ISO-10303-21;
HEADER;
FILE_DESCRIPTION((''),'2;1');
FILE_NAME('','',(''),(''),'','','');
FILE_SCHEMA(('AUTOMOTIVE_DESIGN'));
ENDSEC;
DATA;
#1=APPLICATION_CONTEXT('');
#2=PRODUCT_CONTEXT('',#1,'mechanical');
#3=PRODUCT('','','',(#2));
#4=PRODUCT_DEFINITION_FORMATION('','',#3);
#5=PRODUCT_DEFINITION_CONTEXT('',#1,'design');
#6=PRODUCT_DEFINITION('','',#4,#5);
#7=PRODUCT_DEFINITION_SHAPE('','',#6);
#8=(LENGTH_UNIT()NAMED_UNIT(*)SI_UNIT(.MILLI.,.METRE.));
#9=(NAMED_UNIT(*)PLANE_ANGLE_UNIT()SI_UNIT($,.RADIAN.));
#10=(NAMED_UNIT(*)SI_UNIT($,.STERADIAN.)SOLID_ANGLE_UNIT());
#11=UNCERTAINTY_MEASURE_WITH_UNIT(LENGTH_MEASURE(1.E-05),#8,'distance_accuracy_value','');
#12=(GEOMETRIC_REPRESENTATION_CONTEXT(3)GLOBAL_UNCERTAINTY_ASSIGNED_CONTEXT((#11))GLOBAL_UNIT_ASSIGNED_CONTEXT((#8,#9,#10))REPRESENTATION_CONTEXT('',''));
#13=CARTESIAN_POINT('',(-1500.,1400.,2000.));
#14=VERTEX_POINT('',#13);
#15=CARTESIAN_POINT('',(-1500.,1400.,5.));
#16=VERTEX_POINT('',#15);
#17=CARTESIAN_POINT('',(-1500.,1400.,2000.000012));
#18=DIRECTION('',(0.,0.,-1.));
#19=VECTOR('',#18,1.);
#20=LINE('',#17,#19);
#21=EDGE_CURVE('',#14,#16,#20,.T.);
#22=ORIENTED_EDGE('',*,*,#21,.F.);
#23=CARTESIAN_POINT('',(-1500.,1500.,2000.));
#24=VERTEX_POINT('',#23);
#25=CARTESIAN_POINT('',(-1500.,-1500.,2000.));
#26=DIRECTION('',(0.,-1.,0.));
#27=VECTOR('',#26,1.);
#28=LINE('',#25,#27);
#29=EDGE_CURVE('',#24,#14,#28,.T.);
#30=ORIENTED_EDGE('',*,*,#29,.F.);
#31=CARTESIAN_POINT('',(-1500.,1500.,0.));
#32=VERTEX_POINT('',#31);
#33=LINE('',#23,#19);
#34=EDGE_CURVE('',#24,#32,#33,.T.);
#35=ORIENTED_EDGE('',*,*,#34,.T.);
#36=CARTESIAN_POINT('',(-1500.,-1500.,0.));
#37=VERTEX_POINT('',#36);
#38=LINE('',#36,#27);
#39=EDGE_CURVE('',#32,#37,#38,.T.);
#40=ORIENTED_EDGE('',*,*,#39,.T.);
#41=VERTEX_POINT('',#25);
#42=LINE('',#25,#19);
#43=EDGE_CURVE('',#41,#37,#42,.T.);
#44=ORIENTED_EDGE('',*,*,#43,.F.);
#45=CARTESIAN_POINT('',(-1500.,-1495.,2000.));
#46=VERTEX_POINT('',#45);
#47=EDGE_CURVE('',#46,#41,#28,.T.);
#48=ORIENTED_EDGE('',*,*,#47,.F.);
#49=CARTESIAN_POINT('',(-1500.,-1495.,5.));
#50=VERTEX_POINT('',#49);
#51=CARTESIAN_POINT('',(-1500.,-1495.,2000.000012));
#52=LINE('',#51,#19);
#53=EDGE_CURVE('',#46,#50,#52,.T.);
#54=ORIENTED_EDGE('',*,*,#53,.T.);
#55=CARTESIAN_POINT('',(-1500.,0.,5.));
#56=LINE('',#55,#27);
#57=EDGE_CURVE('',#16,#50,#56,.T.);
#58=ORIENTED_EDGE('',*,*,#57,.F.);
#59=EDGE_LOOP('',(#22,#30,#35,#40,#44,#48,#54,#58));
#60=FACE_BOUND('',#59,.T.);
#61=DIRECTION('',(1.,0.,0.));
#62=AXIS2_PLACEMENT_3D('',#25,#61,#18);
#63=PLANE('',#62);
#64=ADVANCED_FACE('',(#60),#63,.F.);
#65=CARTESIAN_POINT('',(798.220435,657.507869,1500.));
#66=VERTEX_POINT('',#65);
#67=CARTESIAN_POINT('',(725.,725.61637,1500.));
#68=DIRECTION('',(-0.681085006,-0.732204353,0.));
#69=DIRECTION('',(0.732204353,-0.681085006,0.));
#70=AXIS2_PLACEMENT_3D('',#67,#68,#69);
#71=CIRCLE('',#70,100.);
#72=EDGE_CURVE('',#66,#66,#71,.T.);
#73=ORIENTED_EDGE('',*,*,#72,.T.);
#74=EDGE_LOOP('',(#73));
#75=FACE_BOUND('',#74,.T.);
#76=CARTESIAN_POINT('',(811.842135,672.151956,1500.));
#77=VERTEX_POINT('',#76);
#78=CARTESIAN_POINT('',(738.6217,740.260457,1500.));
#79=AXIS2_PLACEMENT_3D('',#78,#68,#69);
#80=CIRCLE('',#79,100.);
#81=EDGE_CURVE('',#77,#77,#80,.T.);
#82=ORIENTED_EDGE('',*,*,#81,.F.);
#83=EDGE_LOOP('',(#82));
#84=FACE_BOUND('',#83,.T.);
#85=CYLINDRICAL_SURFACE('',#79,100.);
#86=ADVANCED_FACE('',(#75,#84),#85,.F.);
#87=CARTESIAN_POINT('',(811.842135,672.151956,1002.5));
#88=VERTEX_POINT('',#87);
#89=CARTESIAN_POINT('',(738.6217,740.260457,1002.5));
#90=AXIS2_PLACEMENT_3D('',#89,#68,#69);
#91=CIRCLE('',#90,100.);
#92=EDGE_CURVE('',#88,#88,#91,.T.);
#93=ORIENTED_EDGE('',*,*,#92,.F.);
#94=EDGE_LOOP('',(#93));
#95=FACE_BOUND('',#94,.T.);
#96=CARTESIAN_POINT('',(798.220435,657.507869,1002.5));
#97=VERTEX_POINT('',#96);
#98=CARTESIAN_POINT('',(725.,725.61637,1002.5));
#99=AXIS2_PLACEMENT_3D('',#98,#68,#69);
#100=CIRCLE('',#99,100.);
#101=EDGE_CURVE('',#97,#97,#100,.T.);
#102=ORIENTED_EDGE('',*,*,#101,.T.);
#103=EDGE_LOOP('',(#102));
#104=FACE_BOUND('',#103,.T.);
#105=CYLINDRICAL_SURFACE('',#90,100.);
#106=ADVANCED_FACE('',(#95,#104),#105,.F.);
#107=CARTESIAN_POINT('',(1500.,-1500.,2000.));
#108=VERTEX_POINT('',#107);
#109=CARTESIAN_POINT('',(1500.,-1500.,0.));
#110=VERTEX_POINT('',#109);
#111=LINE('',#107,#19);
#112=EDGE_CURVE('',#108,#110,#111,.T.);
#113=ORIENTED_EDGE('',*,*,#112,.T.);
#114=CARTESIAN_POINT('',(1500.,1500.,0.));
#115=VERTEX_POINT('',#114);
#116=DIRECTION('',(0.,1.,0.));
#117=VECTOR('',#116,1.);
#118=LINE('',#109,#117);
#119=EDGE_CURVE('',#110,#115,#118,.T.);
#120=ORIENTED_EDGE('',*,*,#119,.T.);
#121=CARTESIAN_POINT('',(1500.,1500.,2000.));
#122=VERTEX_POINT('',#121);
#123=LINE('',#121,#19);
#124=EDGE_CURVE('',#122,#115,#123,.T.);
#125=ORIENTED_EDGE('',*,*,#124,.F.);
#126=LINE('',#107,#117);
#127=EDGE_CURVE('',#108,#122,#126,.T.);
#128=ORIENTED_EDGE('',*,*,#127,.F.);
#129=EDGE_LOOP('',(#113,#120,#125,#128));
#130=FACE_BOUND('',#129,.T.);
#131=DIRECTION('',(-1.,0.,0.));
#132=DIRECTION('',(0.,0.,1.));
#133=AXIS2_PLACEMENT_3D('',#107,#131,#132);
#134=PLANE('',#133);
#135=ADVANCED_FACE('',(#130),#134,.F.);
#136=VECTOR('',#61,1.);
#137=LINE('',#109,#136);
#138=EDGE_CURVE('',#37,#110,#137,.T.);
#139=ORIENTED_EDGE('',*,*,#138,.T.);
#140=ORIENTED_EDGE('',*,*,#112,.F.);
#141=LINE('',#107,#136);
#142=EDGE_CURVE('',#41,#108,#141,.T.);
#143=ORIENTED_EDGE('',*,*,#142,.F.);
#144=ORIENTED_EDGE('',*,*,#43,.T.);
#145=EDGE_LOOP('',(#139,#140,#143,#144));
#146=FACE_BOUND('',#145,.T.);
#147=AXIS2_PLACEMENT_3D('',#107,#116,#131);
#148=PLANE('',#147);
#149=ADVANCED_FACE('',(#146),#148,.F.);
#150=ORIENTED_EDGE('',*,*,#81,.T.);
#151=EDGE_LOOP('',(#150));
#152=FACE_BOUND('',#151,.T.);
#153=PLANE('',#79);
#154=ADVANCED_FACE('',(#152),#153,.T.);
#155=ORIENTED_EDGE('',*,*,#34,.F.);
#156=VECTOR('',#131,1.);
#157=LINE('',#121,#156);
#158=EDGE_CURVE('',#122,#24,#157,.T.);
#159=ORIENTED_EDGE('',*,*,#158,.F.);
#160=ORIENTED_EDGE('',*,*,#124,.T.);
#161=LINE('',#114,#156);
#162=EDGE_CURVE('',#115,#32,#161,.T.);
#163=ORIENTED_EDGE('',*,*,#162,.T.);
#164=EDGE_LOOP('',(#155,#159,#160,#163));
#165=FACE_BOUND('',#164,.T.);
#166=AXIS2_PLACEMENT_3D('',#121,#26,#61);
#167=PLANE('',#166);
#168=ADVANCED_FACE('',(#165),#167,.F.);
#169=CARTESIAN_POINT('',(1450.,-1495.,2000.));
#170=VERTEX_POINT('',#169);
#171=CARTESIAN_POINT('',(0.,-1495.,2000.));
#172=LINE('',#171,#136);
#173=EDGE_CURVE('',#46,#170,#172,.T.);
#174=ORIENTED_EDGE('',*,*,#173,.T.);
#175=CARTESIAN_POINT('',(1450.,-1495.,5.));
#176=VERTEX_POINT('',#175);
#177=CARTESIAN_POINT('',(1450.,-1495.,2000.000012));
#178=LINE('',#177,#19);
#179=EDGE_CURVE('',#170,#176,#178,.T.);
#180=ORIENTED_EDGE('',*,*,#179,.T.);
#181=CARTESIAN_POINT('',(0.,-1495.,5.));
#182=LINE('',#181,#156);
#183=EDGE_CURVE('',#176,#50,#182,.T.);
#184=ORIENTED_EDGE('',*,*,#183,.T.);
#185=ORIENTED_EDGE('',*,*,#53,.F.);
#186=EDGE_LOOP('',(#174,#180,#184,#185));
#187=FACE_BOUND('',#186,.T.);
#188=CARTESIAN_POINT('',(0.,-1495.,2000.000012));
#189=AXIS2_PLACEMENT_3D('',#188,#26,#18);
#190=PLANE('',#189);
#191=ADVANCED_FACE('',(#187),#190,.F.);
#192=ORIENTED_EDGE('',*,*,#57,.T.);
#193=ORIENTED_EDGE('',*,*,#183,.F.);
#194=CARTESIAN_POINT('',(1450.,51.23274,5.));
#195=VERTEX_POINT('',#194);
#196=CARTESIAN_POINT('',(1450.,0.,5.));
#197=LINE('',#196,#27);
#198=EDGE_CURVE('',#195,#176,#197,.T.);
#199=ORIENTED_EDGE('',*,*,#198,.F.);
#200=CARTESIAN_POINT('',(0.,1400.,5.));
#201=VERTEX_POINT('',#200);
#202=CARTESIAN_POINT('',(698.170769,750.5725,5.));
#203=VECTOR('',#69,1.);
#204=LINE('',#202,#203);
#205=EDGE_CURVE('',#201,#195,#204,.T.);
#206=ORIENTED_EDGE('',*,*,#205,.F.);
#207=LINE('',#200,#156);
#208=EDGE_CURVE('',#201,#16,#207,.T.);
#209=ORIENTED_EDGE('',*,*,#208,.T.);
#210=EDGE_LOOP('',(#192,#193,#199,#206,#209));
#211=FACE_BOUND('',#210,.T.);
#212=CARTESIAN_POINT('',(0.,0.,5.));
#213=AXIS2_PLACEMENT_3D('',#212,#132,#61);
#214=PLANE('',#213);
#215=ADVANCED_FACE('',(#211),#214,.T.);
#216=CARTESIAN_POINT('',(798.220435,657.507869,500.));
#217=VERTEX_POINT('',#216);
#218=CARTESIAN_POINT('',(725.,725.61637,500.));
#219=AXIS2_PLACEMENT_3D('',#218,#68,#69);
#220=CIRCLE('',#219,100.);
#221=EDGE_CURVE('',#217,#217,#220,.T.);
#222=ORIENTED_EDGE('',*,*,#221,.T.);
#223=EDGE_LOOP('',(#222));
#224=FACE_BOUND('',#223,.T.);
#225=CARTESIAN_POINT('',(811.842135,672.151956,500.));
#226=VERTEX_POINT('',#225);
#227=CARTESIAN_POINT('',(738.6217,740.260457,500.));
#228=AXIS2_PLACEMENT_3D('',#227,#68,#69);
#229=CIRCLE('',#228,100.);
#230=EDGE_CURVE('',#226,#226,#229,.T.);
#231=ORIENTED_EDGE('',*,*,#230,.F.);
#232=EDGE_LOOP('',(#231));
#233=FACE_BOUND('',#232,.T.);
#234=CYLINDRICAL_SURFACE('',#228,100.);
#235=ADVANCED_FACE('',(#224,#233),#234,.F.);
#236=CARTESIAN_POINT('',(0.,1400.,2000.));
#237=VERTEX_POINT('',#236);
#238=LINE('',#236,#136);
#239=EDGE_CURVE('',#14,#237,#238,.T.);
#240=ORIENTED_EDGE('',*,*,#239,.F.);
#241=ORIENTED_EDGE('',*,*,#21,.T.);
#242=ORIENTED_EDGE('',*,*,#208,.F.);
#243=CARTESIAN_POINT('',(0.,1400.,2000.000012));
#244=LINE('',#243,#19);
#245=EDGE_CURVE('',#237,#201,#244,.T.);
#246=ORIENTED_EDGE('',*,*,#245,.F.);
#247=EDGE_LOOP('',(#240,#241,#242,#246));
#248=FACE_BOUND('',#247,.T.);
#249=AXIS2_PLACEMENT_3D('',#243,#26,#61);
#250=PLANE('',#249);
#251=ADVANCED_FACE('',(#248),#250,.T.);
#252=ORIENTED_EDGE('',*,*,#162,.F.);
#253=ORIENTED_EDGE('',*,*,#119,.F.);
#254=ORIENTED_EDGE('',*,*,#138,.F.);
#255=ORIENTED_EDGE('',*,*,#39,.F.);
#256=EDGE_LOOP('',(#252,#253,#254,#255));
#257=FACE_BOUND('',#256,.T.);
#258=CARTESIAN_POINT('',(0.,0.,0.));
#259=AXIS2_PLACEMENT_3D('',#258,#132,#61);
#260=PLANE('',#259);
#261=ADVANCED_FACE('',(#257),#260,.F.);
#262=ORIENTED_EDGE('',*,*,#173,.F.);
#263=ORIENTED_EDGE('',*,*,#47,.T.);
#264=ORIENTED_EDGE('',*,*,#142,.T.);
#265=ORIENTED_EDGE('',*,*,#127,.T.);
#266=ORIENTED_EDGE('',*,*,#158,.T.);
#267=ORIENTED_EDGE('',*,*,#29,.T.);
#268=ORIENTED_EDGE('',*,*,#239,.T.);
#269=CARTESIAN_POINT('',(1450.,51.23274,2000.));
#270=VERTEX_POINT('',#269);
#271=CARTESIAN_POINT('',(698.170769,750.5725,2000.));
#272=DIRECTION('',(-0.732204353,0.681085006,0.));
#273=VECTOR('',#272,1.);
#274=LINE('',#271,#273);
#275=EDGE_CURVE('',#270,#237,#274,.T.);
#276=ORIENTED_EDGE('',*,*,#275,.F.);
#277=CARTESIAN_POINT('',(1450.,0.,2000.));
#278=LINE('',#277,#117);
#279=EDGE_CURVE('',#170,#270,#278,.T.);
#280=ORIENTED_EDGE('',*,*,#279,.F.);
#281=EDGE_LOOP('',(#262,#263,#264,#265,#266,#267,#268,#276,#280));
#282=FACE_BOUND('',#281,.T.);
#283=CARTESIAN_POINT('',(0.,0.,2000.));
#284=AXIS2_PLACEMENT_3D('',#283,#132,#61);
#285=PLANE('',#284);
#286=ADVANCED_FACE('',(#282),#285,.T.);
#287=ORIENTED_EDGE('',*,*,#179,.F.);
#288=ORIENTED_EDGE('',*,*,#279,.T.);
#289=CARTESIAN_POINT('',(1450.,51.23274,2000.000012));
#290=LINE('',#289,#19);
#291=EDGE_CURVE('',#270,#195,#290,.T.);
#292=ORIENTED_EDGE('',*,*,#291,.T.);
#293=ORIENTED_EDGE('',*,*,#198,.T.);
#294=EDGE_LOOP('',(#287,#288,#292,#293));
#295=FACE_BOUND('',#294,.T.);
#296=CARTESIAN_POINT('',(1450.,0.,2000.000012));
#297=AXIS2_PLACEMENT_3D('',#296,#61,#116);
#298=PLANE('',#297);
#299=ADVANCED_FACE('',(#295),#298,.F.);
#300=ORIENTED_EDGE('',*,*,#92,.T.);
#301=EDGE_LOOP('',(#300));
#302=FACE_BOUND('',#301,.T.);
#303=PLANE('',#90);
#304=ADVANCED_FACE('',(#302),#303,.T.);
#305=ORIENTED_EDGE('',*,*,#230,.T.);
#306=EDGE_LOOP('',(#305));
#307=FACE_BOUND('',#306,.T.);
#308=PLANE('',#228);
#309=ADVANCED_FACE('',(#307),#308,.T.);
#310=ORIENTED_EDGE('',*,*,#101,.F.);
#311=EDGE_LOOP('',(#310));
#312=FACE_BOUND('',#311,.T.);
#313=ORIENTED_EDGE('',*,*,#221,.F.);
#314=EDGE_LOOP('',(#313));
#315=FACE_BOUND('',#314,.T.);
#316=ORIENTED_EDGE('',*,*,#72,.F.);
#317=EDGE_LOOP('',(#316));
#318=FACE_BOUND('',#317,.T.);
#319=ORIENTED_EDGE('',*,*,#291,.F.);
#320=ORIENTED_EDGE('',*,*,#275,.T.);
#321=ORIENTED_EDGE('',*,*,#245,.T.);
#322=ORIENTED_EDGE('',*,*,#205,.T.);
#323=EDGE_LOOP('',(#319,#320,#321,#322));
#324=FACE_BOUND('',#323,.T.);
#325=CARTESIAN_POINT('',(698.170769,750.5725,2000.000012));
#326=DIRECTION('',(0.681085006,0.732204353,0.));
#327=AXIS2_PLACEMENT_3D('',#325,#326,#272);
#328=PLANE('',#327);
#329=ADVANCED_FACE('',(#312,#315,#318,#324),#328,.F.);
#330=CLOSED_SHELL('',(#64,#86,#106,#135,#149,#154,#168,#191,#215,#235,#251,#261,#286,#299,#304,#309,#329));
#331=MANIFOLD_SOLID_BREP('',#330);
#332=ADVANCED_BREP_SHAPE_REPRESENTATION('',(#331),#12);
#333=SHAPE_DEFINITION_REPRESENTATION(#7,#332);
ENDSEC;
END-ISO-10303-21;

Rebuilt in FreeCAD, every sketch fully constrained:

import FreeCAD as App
import Part
import Sketcher

V = App.Vector
Q = App.Units.Quantity


def add_polygon(sketch, points):
    """Adds a closed chain of lines whose ends are joined by coincident constraints."""
    first, n = sketch.GeometryCount, len(points)
    for a, b in zip(points, points[1:] + points[:1]):
        sketch.addGeometry(Part.LineSegment(App.Vector(*a, 0), App.Vector(*b, 0)), False)
    for i in range(n):
        sketch.addConstraint(Sketcher.Constraint("Coincident", first + i, 2, first + (i + 1) % n, 1))

doc = App.newDocument("Part")
body = doc.addObject("PartDesign::Body", "Body")

# Sketch on XY plane
sketch1 = doc.addObject("Sketcher::SketchObject", "Sketch")
body.addObject(sketch1)
sketch1.AttachmentSupport = (doc.XY_Plane, [""])
sketch1.MapMode = "FlatFace"
add_polygon(sketch1, [(-1500, 1500), (-1500, -1500), (1500, -1500), (1500, 1500)])  # lines 0-3
sketch1.addConstraint(Sketcher.Constraint("Vertical", 0))
sketch1.addConstraint(Sketcher.Constraint("Horizontal", 1))
sketch1.addConstraint(Sketcher.Constraint("Vertical", 2))
sketch1.addConstraint(Sketcher.Constraint("Horizontal", 3))
sketch1.addConstraint(Sketcher.Constraint("Symmetric", 0, 2, 2, 2, -1, 1))
sketch1.addConstraint(Sketcher.Constraint("Equal", 3, 0))
sketch1.addConstraint(Sketcher.Constraint("DistanceX", 1, 1, 1, 2, Q("3000 mm")))
pad1 = doc.addObject("PartDesign::Pad", "Pad")
body.addObject(pad1)
pad1.Profile = sketch1
pad1.Length = 2000

# Sketch on XY plane
sketch2 = doc.addObject("Sketcher::SketchObject", "Sketch001")
body.addObject(sketch2)
sketch2.AttachmentSupport = (doc.XY_Plane, [""])
sketch2.MapMode = "FlatFace"
sketch2.AttachmentOffset = App.Placement(V(0, 0, 2000), App.Rotation())
add_polygon(sketch2, [(0, 1400), (-1500, 1400), (-1500, -1495), (1450, -1495), (1450, 51)])  # lines 0-4
sketch2.addConstraint(Sketcher.Constraint("Horizontal", 0))
sketch2.addConstraint(Sketcher.Constraint("Vertical", 1))
sketch2.addConstraint(Sketcher.Constraint("Horizontal", 2))
sketch2.addConstraint(Sketcher.Constraint("Vertical", 3))
sketch2.addConstraint(Sketcher.Constraint("PointOnObject", 4, 2, -2))
sketch2.addConstraint(Sketcher.Constraint("DistanceX", 0, 2, 0, 1, Q("1500 mm")))
sketch2.addConstraint(Sketcher.Constraint("DistanceX", 2, 1, 2, 2, Q("2950 mm")))
sketch2.addConstraint(Sketcher.Constraint("DistanceY", 1, 2, 1, 1, Q("2895 mm")))
sketch2.addConstraint(Sketcher.Constraint("DistanceY", -1, 1, 0, 2, Q("1400 mm")))
sketch2.addConstraint(Sketcher.Constraint("DistanceY", 3, 1, 3, 2, Q("1546.23274 mm")))
pocket1 = doc.addObject("PartDesign::Pocket", "Pocket")
body.addObject(pocket1)
pocket1.Profile = sketch2
pocket1.Type = "TwoLengths"
pocket1.Length = 2916.475947
pocket1.Length2 = 1995
pocket1.Reversed = True

# Sketch on an angled plane
sketch3 = doc.addObject("Sketcher::SketchObject", "Sketch002")
body.addObject(sketch3)
sketch3.Placement = App.Placement(V(698.170769, 750.5725, 0), App.Rotation(V(0.732204353, -0.681085006, 0), V(0, 0, 1), V(-0.681085006, -0.732204353, 0), "ZXY"))
sketch3.addGeometry(Part.Circle(V(37, 1500, 0), V(0, 0, 1), 100), False)
sketch3.addGeometry(Part.Circle(V(37, 1002, 0), V(0, 0, 1), 100), False)
sketch3.addGeometry(Part.Circle(V(37, 500, 0), V(0, 0, 1), 100), False)
sketch3.addConstraint(Sketcher.Constraint("Equal", 0, 1))
sketch3.addConstraint(Sketcher.Constraint("Equal", 1, 2))
sketch3.addConstraint(Sketcher.Constraint("Vertical", 0, 3, 1, 3))
sketch3.addConstraint(Sketcher.Constraint("Vertical", 1, 3, 2, 3))
sketch3.addConstraint(Sketcher.Constraint("Diameter", 0, Q("200 mm")))
sketch3.addConstraint(Sketcher.Constraint("DistanceY", -1, 1, 0, 3, Q("1500 mm")))
sketch3.addConstraint(Sketcher.Constraint("DistanceY", -1, 1, 2, 3, Q("500 mm")))
sketch3.addConstraint(Sketcher.Constraint("DistanceY", -1, 1, 1, 3, Q("1002.5 mm")))
sketch3.addConstraint(Sketcher.Constraint("DistanceX", -1, 1, 0, 3, Q("36.641726 mm")))
pocket2 = doc.addObject("PartDesign::Pocket", "Pocket001")
body.addObject(pocket2)
pocket2.Profile = sketch3
pocket2.Length = 20

doc.recompute()
